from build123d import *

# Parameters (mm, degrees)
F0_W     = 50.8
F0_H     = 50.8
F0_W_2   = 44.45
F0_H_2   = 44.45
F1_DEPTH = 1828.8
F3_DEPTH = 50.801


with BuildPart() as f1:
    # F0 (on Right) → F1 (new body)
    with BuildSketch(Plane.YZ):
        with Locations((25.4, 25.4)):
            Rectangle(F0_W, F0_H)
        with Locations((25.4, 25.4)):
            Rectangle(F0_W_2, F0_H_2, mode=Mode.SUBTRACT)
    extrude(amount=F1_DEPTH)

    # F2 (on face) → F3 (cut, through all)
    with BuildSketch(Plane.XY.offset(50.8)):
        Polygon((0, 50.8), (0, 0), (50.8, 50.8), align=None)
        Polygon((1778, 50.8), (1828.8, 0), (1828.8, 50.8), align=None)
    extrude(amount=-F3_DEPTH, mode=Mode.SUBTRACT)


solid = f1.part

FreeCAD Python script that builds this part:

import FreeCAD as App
import Part
import Sketcher

V = App.Vector
Q = App.Units.Quantity

doc = App.newDocument("Part")
body = doc.addObject("PartDesign::Body", "Body")

sketch1 = body.newObject("Sketcher::SketchObject", "Sketch")
sketch1.AttachmentSupport = (doc.getObject("YZ_Plane"), [""])
sketch1.MapMode = "FlatFace"
sketch1.addGeometry(Part.LineSegment(V(0, 50.8, 0), V(0, 0, 0)), False)
sketch1.addGeometry(Part.LineSegment(V(0, 0, 0), V(50.8, 0, 0)), False)
sketch1.addGeometry(Part.LineSegment(V(50.8, 0, 0), V(50.8, 50.8, 0)), False)
sketch1.addGeometry(Part.LineSegment(V(50.8, 50.8, 0), V(0, 50.8, 0)), False)
sketch1.addGeometry(Part.LineSegment(V(47.625, 3.175, 0), V(3.175, 3.175, 0)), False)
sketch1.addGeometry(Part.LineSegment(V(3.175, 3.175, 0), V(3.175, 47.625, 0)), False)
sketch1.addGeometry(Part.LineSegment(V(3.175, 47.625, 0), V(47.625, 47.625, 0)), False)
sketch1.addGeometry(Part.LineSegment(V(47.625, 47.625, 0), V(47.625, 3.175, 0)), False)
sketch1.addConstraint(Sketcher.Constraint("Coincident", 0, 2, 1, 1))
sketch1.addConstraint(Sketcher.Constraint("Coincident", 1, 2, 2, 1))
sketch1.addConstraint(Sketcher.Constraint("Coincident", 2, 2, 3, 1))
sketch1.addConstraint(Sketcher.Constraint("Coincident", 3, 2, 0, 1))
sketch1.addConstraint(Sketcher.Constraint("Coincident", 4, 2, 5, 1))
sketch1.addConstraint(Sketcher.Constraint("Coincident", 5, 2, 6, 1))
sketch1.addConstraint(Sketcher.Constraint("Coincident", 6, 2, 7, 1))
sketch1.addConstraint(Sketcher.Constraint("Coincident", 7, 2, 4, 1))
sketch1.addConstraint(Sketcher.Constraint("Vertical", 0))
sketch1.addConstraint(Sketcher.Constraint("Horizontal", 1))
sketch1.addConstraint(Sketcher.Constraint("Vertical", 2))
sketch1.addConstraint(Sketcher.Constraint("Horizontal", 3))
sketch1.addConstraint(Sketcher.Constraint("Horizontal", 4))
sketch1.addConstraint(Sketcher.Constraint("Vertical", 5))
sketch1.addConstraint(Sketcher.Constraint("Horizontal", 6))
sketch1.addConstraint(Sketcher.Constraint("Vertical", 7))
sketch1.addConstraint(Sketcher.Constraint("Coincident", 0, 2, -1, 1))
sketch1.addConstraint(Sketcher.Constraint("Equal", 3, 0))
sketch1.addConstraint(Sketcher.Constraint("Equal", 6, 5))
sketch1.addConstraint(Sketcher.Constraint("DistanceX", 1, 1, 1, 2, Q("2 in")))
sketch1.addConstraint(Sketcher.Constraint("DistanceX", 4, 2, 4, 1, Q("1.75 in")))
sketch1.addConstraint(Sketcher.Constraint("DistanceX", -1, 1, 4, 2, Q("0.125 in")))
sketch1.addConstraint(Sketcher.Constraint("DistanceY", -1, 1, 4, 2, Q("0.125 in")))
pad1 = body.newObject("PartDesign::Pad", "Pad")
pad1.Profile = sketch1
pad1.Length = Q("72 in")

sketch2 = body.newObject("Sketcher::SketchObject", "Sketch001")
sketch2.AttachmentSupport = (doc.getObject("XY_Plane"), [""])
sketch2.MapMode = "FlatFace"
sketch2.AttachmentOffset = App.Placement(V(0, 0, 2 * 25.4), App.Rotation())
sketch2.addGeometry(Part.LineSegment(V(0, 50.8, 0), V(0, 0, 0)), False)
sketch2.addGeometry(Part.LineSegment(V(0, 0, 0), V(50.8, 50.8, 0)), False)
sketch2.addGeometry(Part.LineSegment(V(50.8, 50.8, 0), V(0, 50.8, 0)), False)
sketch2.addGeometry(Part.LineSegment(V(1778, 50.8, 0), V(1828.8, 0, 0)), False)
sketch2.addGeometry(Part.LineSegment(V(1828.8, 0, 0), V(1828.8, 50.8, 0)), False)
sketch2.addGeometry(Part.LineSegment(V(1828.8, 50.8, 0), V(1778, 50.8, 0)), False)
sketch2.addConstraint(Sketcher.Constraint("Coincident", 0, 2, 1, 1))
sketch2.addConstraint(Sketcher.Constraint("Coincident", 1, 2, 2, 1))
sketch2.addConstraint(Sketcher.Constraint("Coincident", 2, 2, 0, 1))
sketch2.addConstraint(Sketcher.Constraint("Coincident", 3, 2, 4, 1))
sketch2.addConstraint(Sketcher.Constraint("Coincident", 4, 2, 5, 1))
sketch2.addConstraint(Sketcher.Constraint("Coincident", 5, 2, 3, 1))
sketch2.addConstraint(Sketcher.Constraint("Vertical", 0))
sketch2.addConstraint(Sketcher.Constraint("Horizontal", 2))
sketch2.addConstraint(Sketcher.Constraint("Vertical", 4))
sketch2.addConstraint(Sketcher.Constraint("Horizontal", 5))
sketch2.addConstraint(Sketcher.Constraint("Coincident", 0, 2, -1, 1))
sketch2.addConstraint(Sketcher.Constraint("PointOnObject", 3, 2, -1))
sketch2.addConstraint(Sketcher.Constraint("Perpendicular", 1, 3))
sketch2.addConstraint(Sketcher.Constraint("Horizontal", 2, 2, 4, 2))
sketch2.addConstraint(Sketcher.Constraint("Equal", 2, 5))
sketch2.addConstraint(Sketcher.Constraint("DistanceX", 2, 2, 2, 1, Q("2 in")))
sketch2.addConstraint(Sketcher.Constraint("DistanceX", -1, 1, 3, 2, Q("72 in")))
pocket1 = body.newObject("PartDesign::Pocket", "Pocket")
pocket1.Profile = sketch2
pocket1.Type = "ThroughAll"

doc.recompute()
